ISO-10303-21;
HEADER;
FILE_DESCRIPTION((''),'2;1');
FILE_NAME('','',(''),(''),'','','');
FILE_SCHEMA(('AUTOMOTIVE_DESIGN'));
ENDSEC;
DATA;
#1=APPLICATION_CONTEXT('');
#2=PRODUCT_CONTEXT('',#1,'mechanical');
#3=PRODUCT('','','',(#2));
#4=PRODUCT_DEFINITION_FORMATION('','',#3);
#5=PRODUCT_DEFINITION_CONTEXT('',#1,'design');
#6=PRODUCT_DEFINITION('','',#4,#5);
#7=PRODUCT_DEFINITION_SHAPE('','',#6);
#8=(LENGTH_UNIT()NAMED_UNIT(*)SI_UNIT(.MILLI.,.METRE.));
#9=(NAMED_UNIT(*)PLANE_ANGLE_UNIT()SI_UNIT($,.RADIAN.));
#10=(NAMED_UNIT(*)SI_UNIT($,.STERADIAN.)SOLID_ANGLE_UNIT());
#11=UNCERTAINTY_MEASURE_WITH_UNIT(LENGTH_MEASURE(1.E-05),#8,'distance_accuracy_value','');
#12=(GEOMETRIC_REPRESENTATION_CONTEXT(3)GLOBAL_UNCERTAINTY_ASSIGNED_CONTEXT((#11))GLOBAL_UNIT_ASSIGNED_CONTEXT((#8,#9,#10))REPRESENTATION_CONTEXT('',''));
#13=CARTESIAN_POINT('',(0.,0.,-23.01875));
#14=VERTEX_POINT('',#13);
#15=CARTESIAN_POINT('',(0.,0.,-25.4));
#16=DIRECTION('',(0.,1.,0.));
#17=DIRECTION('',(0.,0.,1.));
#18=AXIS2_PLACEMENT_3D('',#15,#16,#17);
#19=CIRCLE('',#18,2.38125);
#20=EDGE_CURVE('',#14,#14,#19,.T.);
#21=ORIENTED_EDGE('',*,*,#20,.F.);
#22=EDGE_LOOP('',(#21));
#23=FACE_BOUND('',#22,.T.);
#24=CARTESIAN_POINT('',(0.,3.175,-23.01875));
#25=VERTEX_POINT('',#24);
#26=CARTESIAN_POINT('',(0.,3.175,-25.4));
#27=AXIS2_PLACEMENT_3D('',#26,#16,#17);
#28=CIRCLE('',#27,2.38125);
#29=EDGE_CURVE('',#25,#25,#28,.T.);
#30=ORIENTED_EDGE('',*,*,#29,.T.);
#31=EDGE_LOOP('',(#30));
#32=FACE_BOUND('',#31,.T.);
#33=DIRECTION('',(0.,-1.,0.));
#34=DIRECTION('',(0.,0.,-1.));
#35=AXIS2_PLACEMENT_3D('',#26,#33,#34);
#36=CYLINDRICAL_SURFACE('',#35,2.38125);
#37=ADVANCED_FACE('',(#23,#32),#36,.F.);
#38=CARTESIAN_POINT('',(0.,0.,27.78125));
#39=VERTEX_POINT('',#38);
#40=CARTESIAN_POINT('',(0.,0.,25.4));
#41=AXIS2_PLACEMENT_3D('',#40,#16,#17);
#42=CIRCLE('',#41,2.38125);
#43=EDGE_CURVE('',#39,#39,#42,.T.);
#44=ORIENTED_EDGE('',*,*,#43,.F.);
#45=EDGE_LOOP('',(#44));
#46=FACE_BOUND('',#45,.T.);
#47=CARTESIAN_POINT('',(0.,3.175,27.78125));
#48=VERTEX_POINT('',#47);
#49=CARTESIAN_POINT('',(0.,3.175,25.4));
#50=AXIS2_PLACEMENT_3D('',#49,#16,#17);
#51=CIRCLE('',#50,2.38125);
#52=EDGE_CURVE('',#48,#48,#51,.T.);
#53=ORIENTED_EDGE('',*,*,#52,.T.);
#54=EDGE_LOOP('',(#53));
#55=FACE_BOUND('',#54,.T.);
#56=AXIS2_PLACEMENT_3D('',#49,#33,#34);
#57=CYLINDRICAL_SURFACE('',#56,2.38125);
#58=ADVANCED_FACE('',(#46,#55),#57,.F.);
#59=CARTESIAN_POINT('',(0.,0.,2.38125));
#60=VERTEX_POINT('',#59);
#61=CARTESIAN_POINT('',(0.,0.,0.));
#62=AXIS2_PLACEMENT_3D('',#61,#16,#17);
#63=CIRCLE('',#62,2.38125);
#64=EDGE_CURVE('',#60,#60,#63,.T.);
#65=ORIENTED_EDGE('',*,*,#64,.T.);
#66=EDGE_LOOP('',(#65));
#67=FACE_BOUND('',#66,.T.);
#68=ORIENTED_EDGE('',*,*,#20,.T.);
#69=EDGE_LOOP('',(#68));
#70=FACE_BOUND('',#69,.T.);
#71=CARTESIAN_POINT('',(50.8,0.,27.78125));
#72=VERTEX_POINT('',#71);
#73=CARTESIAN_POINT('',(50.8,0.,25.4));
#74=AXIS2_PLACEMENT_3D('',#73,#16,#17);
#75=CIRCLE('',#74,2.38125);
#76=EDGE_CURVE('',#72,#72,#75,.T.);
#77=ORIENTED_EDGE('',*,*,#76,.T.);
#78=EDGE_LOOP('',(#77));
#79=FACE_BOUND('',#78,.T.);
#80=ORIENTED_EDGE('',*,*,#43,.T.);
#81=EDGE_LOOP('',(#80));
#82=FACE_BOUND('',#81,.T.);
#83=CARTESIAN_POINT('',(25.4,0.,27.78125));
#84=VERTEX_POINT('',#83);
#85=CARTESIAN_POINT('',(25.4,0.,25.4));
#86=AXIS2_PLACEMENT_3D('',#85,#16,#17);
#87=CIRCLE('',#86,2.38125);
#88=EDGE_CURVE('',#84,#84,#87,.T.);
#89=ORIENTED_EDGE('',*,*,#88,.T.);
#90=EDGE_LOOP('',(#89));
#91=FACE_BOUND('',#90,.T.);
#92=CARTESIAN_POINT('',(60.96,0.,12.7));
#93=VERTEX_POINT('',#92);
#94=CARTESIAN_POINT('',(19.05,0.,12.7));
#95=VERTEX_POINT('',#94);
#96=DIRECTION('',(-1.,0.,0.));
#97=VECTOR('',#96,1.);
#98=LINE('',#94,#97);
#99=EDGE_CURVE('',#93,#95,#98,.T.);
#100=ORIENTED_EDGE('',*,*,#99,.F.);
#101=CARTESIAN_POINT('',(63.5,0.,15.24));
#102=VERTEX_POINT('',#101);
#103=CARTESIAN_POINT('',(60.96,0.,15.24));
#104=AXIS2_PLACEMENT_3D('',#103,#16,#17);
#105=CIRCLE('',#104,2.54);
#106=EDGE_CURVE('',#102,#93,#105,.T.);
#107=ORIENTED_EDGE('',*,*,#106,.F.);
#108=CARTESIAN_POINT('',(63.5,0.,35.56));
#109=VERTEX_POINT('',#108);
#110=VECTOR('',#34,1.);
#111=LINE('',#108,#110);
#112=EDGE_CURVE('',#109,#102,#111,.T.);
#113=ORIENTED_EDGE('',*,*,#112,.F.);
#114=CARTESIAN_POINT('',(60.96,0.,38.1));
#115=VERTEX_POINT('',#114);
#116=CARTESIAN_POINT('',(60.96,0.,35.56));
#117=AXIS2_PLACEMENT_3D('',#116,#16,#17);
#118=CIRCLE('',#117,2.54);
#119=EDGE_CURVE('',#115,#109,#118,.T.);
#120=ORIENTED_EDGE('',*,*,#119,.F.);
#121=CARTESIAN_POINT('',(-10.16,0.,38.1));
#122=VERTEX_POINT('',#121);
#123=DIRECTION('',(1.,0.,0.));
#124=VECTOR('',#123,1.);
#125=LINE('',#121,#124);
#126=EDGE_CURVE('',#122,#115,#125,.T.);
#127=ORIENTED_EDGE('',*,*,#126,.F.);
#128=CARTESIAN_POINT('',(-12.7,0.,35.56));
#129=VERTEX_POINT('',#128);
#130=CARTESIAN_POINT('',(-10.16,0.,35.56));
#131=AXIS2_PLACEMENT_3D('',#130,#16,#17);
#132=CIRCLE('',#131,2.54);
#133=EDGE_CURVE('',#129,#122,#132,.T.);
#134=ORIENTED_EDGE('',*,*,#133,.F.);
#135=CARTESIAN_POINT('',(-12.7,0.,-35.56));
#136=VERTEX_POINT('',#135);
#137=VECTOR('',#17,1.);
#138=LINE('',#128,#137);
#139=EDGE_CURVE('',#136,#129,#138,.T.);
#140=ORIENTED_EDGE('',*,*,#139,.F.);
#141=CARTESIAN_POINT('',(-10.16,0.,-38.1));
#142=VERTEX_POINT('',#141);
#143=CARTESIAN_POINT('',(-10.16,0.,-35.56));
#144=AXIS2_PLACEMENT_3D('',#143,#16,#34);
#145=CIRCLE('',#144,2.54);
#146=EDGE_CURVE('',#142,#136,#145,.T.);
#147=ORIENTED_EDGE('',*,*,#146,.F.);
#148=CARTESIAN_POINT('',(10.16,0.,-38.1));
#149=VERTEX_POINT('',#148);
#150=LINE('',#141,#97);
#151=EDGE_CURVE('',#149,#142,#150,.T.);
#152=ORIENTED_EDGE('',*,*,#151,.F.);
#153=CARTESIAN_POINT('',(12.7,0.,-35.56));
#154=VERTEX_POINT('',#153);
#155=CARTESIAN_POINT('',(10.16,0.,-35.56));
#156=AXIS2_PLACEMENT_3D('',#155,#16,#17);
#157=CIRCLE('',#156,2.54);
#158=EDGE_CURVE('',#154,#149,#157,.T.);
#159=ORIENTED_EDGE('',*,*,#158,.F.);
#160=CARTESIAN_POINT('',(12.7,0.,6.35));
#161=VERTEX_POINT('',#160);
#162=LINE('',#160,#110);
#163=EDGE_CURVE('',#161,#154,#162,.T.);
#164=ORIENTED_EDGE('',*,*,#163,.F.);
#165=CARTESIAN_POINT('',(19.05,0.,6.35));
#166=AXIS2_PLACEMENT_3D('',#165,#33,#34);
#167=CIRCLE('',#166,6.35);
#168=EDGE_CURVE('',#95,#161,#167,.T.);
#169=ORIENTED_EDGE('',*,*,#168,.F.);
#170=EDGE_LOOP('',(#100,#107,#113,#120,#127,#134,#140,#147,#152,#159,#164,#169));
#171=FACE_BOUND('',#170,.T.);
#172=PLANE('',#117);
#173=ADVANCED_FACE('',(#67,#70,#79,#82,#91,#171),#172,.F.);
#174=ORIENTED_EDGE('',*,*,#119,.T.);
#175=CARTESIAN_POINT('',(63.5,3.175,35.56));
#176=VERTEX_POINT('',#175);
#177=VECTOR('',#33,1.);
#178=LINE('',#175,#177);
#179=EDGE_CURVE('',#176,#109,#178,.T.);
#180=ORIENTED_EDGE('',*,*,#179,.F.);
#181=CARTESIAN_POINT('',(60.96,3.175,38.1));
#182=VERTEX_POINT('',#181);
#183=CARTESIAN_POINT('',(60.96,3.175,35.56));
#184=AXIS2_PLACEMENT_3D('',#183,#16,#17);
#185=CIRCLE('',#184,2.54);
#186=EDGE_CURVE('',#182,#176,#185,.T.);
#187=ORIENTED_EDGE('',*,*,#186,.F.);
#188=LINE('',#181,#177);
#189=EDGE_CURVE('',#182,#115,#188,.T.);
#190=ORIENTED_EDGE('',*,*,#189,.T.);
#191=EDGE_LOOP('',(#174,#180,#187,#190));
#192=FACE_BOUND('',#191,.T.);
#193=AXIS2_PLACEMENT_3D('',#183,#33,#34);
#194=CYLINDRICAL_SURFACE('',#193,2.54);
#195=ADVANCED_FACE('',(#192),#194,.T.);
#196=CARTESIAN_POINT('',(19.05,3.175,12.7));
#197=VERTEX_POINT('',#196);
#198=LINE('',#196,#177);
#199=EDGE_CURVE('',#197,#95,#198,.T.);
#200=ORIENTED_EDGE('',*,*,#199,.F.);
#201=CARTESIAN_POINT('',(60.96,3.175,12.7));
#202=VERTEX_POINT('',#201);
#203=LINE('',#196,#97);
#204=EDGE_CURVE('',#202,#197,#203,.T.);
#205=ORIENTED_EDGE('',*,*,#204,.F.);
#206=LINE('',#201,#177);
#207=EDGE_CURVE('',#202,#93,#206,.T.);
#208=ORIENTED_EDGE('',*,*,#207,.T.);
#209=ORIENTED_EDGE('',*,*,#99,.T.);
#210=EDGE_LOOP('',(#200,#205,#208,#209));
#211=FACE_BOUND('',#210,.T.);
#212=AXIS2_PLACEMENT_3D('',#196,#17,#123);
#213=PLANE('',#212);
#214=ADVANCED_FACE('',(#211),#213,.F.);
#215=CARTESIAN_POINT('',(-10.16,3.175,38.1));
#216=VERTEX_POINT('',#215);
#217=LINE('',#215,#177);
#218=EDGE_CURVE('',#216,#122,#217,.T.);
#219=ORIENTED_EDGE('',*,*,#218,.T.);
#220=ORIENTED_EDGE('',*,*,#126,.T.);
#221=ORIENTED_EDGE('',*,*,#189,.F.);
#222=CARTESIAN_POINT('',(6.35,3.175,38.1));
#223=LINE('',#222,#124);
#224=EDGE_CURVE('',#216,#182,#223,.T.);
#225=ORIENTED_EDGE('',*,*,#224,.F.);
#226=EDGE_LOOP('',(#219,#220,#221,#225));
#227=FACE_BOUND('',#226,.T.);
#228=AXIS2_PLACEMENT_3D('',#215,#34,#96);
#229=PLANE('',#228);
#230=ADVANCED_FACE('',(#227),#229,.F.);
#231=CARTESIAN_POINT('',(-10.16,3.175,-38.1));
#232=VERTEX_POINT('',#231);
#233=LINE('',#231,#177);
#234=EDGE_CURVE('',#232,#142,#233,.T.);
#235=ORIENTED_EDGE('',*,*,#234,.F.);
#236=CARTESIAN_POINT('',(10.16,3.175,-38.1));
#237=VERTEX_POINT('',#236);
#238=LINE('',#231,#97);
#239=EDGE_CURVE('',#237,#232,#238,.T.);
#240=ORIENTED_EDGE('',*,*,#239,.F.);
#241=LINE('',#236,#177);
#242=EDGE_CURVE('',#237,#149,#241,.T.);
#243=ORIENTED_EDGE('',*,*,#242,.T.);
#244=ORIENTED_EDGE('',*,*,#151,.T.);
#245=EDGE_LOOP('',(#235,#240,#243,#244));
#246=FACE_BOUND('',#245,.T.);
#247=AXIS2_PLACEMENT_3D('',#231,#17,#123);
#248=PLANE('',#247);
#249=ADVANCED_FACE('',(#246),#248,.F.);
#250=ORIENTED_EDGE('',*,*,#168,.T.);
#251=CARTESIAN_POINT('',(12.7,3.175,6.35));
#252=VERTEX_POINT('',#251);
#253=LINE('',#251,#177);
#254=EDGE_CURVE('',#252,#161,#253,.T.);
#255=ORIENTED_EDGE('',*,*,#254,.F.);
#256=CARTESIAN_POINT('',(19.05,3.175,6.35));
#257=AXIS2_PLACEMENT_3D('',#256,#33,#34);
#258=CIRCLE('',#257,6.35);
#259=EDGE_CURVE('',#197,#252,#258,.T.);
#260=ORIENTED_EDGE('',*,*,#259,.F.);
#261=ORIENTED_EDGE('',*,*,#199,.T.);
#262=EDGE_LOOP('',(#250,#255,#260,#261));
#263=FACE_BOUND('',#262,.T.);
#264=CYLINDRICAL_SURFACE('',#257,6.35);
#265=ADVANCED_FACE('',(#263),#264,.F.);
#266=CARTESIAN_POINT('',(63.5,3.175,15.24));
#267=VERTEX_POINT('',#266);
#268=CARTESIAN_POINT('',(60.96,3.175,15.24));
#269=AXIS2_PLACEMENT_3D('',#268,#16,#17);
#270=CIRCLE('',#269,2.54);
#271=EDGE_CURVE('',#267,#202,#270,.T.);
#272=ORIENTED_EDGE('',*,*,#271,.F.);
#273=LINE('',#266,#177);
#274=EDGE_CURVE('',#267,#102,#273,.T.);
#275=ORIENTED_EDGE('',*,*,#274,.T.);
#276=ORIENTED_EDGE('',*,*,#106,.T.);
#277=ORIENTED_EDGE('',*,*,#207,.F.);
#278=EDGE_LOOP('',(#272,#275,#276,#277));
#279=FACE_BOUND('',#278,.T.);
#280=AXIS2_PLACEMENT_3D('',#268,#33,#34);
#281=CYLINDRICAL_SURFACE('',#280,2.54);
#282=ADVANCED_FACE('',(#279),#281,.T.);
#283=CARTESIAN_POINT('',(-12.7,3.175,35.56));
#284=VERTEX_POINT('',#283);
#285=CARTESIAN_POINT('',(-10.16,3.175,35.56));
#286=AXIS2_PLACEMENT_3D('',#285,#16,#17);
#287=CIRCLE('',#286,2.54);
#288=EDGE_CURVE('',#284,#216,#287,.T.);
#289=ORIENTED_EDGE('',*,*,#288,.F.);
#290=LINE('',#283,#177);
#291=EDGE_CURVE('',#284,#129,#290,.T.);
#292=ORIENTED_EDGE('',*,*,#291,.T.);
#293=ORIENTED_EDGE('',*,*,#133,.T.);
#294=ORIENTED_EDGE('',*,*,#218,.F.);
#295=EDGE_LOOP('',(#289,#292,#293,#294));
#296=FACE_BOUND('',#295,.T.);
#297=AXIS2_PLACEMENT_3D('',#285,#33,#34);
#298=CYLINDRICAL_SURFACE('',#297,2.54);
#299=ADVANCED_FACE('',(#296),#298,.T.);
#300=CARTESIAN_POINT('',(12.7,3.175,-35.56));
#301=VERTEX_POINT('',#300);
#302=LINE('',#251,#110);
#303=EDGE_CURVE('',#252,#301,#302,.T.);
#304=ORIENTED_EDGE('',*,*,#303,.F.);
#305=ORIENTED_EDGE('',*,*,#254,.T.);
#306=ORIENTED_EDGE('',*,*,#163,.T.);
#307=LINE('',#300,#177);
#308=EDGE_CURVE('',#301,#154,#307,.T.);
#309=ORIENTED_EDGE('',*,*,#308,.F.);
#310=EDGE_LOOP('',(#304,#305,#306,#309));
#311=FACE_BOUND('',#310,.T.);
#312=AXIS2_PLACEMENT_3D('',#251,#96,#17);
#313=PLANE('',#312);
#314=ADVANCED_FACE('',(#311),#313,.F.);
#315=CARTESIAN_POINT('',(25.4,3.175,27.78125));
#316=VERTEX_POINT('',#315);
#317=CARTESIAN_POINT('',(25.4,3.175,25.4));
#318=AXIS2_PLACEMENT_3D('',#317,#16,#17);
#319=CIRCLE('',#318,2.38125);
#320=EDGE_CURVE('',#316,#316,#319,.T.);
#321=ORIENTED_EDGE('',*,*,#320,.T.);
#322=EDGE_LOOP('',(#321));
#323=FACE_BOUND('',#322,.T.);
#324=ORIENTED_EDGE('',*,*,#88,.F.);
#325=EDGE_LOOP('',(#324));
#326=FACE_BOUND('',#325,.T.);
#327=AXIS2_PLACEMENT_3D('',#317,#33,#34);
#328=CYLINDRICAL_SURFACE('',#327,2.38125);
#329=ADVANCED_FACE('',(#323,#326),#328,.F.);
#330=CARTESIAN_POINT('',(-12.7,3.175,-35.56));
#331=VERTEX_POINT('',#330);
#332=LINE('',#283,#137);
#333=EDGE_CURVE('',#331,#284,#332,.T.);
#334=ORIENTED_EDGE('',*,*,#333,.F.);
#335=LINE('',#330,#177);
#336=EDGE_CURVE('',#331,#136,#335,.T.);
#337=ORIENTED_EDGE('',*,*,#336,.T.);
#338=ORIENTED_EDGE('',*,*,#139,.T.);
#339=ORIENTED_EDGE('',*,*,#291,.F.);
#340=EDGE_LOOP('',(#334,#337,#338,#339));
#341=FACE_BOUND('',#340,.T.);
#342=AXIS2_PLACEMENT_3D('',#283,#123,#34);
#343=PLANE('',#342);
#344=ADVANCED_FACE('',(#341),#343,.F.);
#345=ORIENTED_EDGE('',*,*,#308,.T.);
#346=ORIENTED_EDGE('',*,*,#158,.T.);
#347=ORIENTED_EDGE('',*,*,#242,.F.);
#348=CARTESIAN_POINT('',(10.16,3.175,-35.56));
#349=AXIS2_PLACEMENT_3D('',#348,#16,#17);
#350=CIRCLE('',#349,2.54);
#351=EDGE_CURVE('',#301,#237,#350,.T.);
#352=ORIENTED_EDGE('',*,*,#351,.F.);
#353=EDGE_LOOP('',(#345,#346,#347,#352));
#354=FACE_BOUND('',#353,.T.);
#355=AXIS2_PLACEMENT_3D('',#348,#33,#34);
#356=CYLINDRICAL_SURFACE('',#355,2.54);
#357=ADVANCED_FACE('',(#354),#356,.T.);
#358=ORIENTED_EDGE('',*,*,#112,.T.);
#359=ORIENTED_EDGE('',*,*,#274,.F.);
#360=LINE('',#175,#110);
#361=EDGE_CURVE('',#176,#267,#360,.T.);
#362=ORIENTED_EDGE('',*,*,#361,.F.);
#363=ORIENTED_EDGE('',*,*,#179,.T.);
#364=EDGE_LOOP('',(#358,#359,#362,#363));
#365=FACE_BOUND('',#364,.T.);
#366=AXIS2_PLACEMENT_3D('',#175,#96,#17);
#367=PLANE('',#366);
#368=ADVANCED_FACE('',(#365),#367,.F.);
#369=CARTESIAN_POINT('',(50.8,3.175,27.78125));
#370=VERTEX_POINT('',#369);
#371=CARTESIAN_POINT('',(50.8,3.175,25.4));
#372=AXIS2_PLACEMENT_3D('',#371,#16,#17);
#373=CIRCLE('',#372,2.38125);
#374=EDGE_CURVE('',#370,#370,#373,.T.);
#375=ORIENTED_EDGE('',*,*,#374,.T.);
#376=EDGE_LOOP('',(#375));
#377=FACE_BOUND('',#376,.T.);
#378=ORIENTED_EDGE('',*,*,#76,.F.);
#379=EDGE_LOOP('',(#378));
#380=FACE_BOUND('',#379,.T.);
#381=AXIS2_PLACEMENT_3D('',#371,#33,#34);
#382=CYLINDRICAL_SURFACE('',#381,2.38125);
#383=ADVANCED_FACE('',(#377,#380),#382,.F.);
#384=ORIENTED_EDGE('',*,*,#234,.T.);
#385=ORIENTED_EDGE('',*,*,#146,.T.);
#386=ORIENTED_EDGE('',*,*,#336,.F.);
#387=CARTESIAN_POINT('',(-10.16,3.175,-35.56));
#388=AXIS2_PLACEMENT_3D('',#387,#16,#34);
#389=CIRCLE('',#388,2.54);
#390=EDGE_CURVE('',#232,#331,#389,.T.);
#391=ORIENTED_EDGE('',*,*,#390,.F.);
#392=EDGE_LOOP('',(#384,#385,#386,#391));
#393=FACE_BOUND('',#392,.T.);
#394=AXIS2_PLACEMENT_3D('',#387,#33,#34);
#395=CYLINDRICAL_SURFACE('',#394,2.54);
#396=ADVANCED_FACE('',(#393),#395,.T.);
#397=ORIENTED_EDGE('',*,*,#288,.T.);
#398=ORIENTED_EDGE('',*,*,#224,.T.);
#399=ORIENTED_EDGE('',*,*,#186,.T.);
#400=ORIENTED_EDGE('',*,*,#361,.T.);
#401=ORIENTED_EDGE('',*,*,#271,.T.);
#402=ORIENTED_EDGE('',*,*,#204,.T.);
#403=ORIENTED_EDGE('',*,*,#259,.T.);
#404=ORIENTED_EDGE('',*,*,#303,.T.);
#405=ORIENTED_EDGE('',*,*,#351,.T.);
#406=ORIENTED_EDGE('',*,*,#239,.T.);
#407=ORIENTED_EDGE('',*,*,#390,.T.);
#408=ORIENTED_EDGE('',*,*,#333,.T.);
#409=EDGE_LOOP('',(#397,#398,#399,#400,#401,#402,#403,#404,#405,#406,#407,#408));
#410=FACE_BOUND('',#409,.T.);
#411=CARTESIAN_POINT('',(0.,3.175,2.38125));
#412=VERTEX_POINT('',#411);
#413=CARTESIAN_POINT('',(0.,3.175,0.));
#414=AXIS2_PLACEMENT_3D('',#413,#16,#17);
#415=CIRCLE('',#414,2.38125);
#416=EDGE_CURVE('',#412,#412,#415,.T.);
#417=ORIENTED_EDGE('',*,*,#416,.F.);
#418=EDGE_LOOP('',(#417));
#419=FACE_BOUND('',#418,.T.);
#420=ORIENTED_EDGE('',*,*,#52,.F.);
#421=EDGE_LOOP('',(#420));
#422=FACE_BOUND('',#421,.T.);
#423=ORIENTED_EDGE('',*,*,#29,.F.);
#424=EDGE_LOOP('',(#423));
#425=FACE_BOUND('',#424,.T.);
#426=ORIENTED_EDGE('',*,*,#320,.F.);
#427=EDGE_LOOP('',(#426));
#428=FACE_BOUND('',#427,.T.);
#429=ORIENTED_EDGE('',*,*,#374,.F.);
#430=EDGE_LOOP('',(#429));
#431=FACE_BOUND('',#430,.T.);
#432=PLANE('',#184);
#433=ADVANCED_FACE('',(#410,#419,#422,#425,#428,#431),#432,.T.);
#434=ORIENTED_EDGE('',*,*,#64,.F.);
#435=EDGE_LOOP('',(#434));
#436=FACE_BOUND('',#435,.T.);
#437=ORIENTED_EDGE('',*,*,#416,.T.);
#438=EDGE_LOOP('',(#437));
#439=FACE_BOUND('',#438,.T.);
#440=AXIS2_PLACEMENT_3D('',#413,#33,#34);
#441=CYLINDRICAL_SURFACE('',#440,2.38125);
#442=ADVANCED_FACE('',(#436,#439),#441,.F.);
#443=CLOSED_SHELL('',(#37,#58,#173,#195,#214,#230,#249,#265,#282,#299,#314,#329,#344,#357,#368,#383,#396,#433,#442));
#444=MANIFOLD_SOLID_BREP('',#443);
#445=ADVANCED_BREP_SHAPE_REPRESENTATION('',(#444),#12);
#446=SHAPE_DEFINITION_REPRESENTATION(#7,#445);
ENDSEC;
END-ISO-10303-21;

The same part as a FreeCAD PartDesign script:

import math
import FreeCAD as App
import Part
import Sketcher
Q = App.Units.Quantity

doc = App.newDocument("Part")
body = doc.addObject("PartDesign::Body", "Body")

sketch1 = body.newObject("Sketcher::SketchObject", "Sketch")
sketch1.AttachmentSupport = (doc.getObject("XZ_Plane"), [""])
sketch1.MapMode = "FlatFace"
sketch1.addGeometry([
    Part.LineSegment(App.Vector(-10.2, 38.1, 0), App.Vector(61, 38.1, 0)),
    Part.ArcOfCircle(Part.Circle(App.Vector(61, 35.6, 0), App.Vector(0, 0, 1), 2.5), math.radians(0), math.radians(90)),
    Part.LineSegment(App.Vector(63.5, 35.6, 0), App.Vector(63.5, 15.2, 0)),
    Part.ArcOfCircle(Part.Circle(App.Vector(61, 15.2, 0), App.Vector(0, 0, 1), 2.5), math.radians(-90), math.radians(0)),
    Part.LineSegment(App.Vector(61, 12.7, 0), App.Vector(19.1, 12.7, 0)),
    Part.ArcOfCircle(Part.Circle(App.Vector(19, 6.4, 0), App.Vector(0, 0, 1), 6.3), math.radians(90), math.radians(180)),
    Part.LineSegment(App.Vector(12.7, 6.3, 0), App.Vector(12.7, -35.6, 0)),
    Part.ArcOfCircle(Part.Circle(App.Vector(10.2, -35.6, 0), App.Vector(0, 0, 1), 2.5), math.radians(-90), math.radians(0)),
    Part.LineSegment(App.Vector(10.2, -38.1, 0), App.Vector(-10.2, -38.1, 0)),
    Part.ArcOfCircle(Part.Circle(App.Vector(-10.2, -35.6, 0), App.Vector(0, 0, 1), 2.5), math.radians(-180), math.radians(-90)),
    Part.LineSegment(App.Vector(-12.7, -35.6, 0), App.Vector(-12.7, 35.6, 0)),
    Part.ArcOfCircle(Part.Circle(App.Vector(-10.2, 35.6, 0), App.Vector(0, 0, 1), 2.5), math.radians(90), math.radians(180)),
    Part.Circle(App.Vector(0, 25.4, 0), App.Vector(0, 0, 1), 2.4),
    Part.Circle(App.Vector(25.4, 25.4, 0), App.Vector(0, 0, 1), 2.4),
    Part.Circle(App.Vector(50.8, 25.4, 0), App.Vector(0, 0, 1), 2.4),
    Part.Circle(App.Vector(0, 0, 0), App.Vector(0, 0, 1), 2.4),
    Part.Circle(App.Vector(0, -25.4, 0), App.Vector(0, 0, 1), 2.4),
], False)
sketch1.addConstraint([
    Sketcher.Constraint("Tangent", 0, 2, 1, 2),
    Sketcher.Constraint("Tangent", 1, 1, 2, 1),
    Sketcher.Constraint("Tangent", 2, 2, 3, 2),
    Sketcher.Constraint("Tangent", 3, 1, 4, 1),
    Sketcher.Constraint("Tangent", 4, 2, 5, 1),
    Sketcher.Constraint("Tangent", 5, 2, 6, 1),
    Sketcher.Constraint("Tangent", 6, 2, 7, 2),
    Sketcher.Constraint("Tangent", 7, 1, 8, 1),
    Sketcher.Constraint("Tangent", 8, 2, 9, 2),
    Sketcher.Constraint("Tangent", 9, 1, 10, 1),
    Sketcher.Constraint("Tangent", 10, 2, 11, 2),
    Sketcher.Constraint("Tangent", 11, 1, 0, 1),
    Sketcher.Constraint("Horizontal", 0),
    Sketcher.Constraint("Vertical", 2),
    Sketcher.Constraint("Horizontal", 4),
    Sketcher.Constraint("Vertical", 6),
    Sketcher.Constraint("Horizontal", 8),
    Sketcher.Constraint("Vertical", 10),
    Sketcher.Constraint("Coincident", 15, 3, -1, 1),
    Sketcher.Constraint("Equal", 1, 3),
    Sketcher.Constraint("Equal", 3, 7),
    Sketcher.Constraint("Equal", 7, 9),
    Sketcher.Constraint("Equal", 9, 11),
    Sketcher.Constraint("Equal", 12, 13),
    Sketcher.Constraint("Equal", 13, 14),
    Sketcher.Constraint("Equal", 14, 15),
    Sketcher.Constraint("Equal", 15, 16),
    Sketcher.Constraint("Symmetric", 7, 3, 11, 3, -1, 1),
    Sketcher.Constraint("Symmetric", 12, 3, 16, 3, -1, 1),
    Sketcher.Constraint("PointOnObject", 12, 3, -2),
    Sketcher.Constraint("Horizontal", 12, 3, 13, 3),
    Sketcher.Constraint("Horizontal", 13, 3, 14, 3),
    Sketcher.Constraint("Equal", 8, 2),
    Sketcher.Constraint("Equal", 4, 6),
    Sketcher.Constraint("Radius", 1, Q("0.1 in")),
    Sketcher.Constraint("Radius", 5, Q("0.25 in")),
    Sketcher.Constraint("Diameter", 12, Q("0.1875 in")),
    Sketcher.Constraint("DistanceX", 0, 1, 0, 2, Q("2.8 in")),
    Sketcher.Constraint("DistanceX", 8, 2, 8, 1, Q("0.8 in")),
    Sketcher.Constraint("DistanceY", -1, 1, 12, 3, Q("1 in")),
    Sketcher.Constraint("DistanceX", -1, 1, 13, 3, Q("1 in")),
    Sketcher.Constraint("DistanceX", -1, 1, 14, 3, Q("2 in")),
])
pad1 = body.newObject("PartDesign::Pad", "Pad")
pad1.Profile = sketch1
pad1.Length = Q("0.125 in")
pad1.Reversed = True

doc.recompute()
